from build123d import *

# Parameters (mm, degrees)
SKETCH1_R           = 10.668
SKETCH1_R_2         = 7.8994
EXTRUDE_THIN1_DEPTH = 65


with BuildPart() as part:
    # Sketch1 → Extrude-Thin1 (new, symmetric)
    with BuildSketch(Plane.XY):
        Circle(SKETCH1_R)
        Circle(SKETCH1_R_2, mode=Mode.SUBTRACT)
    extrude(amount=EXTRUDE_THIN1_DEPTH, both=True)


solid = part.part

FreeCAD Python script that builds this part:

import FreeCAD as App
import Part
import Sketcher

V = App.Vector
Q = App.Units.Quantity

doc = App.newDocument("Part")
body = doc.addObject("PartDesign::Body", "Body")

sketch1 = body.newObject("Sketcher::SketchObject", "Sketch")
sketch1.AttachmentSupport = (doc.getObject("XY_Plane"), [""])
sketch1.MapMode = "FlatFace"
sketch1.addGeometry(Part.Circle(V(0, 0, 0), V(0, 0, 1), 11), False)
sketch1.addGeometry(Part.Circle(V(0, 0, 0), V(0, 0, 1), 8), False)
sketch1.addConstraint(Sketcher.Constraint("Coincident", 0, 3, -1, 1))
sketch1.addConstraint(Sketcher.Constraint("Coincident", 1, 3, -1, 1))
sketch1.addConstraint(Sketcher.Constraint("Diameter", 0, Q("0.84 in")))
sketch1.addConstraint(Sketcher.Constraint("Diameter", 1, Q("0.622 in")))
pad1 = body.newObject("PartDesign::Pad", "Pad")
pad1.Profile = sketch1
pad1.Length = 130
pad1.Midplane = True

doc.recompute()
